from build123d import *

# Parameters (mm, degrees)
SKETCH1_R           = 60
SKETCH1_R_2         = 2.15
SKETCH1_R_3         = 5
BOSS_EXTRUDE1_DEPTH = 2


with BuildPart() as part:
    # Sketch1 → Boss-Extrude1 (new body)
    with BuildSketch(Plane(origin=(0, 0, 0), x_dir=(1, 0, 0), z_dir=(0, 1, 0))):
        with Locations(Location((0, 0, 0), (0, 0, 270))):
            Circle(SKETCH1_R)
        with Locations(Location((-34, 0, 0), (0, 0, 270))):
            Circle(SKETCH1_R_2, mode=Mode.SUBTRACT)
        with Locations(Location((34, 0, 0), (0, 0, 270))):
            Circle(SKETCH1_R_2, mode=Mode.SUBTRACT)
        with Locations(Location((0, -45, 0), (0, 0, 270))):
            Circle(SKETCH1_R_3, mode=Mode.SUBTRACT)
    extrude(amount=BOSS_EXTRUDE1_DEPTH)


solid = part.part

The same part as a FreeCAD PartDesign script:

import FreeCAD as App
import Part
import Sketcher
from FreeCAD import Vector

doc = App.newDocument("Part")
params = doc.addObject("Spreadsheet::Sheet", "Params")
for row, (alias, value) in enumerate([
    ("sketch1_diameter", "120 mm"),
    ("sketch1_diameter2", "10 mm"),
    ("sketch1_diameter3", "4.3 mm"),
    ("pad1_length", "2 mm"),
], start=1):
    params.set(f"A{row}", alias)
    params.set(f"B{row}", "=" + value)
    params.setAlias(f"B{row}", alias)

body = doc.addObject("PartDesign::Body", "Body")

sketch1 = doc.addObject("Sketcher::SketchObject", "Sketch")
body.addObject(sketch1)
sketch1.AttachmentSupport = (doc.XZ_Plane, [""])
sketch1.MapMode = "FlatFace"
sketch1.addGeometry([
    Part.Circle(Vector(0, 0, 0), Vector(0, 0, 1), 60),
    Part.Circle(Vector(-34, 0, 0), Vector(0, 0, 1), 2.1),
    Part.Circle(Vector(34, 0, 0), Vector(0, 0, 1), 2.1),
    Part.Circle(Vector(0, 45, 0), Vector(0, 0, 1), 5),
], False)
sketch1.addConstraint([
    Sketcher.Constraint("Coincident", 0, 3, -1, 1),
    Sketcher.Constraint("Equal", 1, 2),
    Sketcher.Constraint("Symmetric", 1, 3, 2, 3, -1, 1),
    Sketcher.Constraint("PointOnObject", 1, 3, -1),
    Sketcher.Constraint("PointOnObject", 3, 3, -2),
    Sketcher.Constraint("Diameter", 0, 120.0),
    Sketcher.Constraint("Diameter", 3, 10.0),
    Sketcher.Constraint("Diameter", 1, 4.3),
    Sketcher.Constraint("DistanceX", 1, 3, -1, 1, 34.0),
    Sketcher.Constraint("DistanceY", -1, 1, 3, 3, 45.0),
])
sketch1.setExpression("Constraints[5]", "Params.sketch1_diameter")
sketch1.setExpression("Constraints[6]", "Params.sketch1_diameter2")
sketch1.setExpression("Constraints[7]", "Params.sketch1_diameter3")
pad1 = doc.addObject("PartDesign::Pad", "Pad")
body.addObject(pad1)
pad1.Profile = sketch1
pad1.setExpression("Length", "Params.pad1_length")
pad1.Reversed = True

doc.recompute()
